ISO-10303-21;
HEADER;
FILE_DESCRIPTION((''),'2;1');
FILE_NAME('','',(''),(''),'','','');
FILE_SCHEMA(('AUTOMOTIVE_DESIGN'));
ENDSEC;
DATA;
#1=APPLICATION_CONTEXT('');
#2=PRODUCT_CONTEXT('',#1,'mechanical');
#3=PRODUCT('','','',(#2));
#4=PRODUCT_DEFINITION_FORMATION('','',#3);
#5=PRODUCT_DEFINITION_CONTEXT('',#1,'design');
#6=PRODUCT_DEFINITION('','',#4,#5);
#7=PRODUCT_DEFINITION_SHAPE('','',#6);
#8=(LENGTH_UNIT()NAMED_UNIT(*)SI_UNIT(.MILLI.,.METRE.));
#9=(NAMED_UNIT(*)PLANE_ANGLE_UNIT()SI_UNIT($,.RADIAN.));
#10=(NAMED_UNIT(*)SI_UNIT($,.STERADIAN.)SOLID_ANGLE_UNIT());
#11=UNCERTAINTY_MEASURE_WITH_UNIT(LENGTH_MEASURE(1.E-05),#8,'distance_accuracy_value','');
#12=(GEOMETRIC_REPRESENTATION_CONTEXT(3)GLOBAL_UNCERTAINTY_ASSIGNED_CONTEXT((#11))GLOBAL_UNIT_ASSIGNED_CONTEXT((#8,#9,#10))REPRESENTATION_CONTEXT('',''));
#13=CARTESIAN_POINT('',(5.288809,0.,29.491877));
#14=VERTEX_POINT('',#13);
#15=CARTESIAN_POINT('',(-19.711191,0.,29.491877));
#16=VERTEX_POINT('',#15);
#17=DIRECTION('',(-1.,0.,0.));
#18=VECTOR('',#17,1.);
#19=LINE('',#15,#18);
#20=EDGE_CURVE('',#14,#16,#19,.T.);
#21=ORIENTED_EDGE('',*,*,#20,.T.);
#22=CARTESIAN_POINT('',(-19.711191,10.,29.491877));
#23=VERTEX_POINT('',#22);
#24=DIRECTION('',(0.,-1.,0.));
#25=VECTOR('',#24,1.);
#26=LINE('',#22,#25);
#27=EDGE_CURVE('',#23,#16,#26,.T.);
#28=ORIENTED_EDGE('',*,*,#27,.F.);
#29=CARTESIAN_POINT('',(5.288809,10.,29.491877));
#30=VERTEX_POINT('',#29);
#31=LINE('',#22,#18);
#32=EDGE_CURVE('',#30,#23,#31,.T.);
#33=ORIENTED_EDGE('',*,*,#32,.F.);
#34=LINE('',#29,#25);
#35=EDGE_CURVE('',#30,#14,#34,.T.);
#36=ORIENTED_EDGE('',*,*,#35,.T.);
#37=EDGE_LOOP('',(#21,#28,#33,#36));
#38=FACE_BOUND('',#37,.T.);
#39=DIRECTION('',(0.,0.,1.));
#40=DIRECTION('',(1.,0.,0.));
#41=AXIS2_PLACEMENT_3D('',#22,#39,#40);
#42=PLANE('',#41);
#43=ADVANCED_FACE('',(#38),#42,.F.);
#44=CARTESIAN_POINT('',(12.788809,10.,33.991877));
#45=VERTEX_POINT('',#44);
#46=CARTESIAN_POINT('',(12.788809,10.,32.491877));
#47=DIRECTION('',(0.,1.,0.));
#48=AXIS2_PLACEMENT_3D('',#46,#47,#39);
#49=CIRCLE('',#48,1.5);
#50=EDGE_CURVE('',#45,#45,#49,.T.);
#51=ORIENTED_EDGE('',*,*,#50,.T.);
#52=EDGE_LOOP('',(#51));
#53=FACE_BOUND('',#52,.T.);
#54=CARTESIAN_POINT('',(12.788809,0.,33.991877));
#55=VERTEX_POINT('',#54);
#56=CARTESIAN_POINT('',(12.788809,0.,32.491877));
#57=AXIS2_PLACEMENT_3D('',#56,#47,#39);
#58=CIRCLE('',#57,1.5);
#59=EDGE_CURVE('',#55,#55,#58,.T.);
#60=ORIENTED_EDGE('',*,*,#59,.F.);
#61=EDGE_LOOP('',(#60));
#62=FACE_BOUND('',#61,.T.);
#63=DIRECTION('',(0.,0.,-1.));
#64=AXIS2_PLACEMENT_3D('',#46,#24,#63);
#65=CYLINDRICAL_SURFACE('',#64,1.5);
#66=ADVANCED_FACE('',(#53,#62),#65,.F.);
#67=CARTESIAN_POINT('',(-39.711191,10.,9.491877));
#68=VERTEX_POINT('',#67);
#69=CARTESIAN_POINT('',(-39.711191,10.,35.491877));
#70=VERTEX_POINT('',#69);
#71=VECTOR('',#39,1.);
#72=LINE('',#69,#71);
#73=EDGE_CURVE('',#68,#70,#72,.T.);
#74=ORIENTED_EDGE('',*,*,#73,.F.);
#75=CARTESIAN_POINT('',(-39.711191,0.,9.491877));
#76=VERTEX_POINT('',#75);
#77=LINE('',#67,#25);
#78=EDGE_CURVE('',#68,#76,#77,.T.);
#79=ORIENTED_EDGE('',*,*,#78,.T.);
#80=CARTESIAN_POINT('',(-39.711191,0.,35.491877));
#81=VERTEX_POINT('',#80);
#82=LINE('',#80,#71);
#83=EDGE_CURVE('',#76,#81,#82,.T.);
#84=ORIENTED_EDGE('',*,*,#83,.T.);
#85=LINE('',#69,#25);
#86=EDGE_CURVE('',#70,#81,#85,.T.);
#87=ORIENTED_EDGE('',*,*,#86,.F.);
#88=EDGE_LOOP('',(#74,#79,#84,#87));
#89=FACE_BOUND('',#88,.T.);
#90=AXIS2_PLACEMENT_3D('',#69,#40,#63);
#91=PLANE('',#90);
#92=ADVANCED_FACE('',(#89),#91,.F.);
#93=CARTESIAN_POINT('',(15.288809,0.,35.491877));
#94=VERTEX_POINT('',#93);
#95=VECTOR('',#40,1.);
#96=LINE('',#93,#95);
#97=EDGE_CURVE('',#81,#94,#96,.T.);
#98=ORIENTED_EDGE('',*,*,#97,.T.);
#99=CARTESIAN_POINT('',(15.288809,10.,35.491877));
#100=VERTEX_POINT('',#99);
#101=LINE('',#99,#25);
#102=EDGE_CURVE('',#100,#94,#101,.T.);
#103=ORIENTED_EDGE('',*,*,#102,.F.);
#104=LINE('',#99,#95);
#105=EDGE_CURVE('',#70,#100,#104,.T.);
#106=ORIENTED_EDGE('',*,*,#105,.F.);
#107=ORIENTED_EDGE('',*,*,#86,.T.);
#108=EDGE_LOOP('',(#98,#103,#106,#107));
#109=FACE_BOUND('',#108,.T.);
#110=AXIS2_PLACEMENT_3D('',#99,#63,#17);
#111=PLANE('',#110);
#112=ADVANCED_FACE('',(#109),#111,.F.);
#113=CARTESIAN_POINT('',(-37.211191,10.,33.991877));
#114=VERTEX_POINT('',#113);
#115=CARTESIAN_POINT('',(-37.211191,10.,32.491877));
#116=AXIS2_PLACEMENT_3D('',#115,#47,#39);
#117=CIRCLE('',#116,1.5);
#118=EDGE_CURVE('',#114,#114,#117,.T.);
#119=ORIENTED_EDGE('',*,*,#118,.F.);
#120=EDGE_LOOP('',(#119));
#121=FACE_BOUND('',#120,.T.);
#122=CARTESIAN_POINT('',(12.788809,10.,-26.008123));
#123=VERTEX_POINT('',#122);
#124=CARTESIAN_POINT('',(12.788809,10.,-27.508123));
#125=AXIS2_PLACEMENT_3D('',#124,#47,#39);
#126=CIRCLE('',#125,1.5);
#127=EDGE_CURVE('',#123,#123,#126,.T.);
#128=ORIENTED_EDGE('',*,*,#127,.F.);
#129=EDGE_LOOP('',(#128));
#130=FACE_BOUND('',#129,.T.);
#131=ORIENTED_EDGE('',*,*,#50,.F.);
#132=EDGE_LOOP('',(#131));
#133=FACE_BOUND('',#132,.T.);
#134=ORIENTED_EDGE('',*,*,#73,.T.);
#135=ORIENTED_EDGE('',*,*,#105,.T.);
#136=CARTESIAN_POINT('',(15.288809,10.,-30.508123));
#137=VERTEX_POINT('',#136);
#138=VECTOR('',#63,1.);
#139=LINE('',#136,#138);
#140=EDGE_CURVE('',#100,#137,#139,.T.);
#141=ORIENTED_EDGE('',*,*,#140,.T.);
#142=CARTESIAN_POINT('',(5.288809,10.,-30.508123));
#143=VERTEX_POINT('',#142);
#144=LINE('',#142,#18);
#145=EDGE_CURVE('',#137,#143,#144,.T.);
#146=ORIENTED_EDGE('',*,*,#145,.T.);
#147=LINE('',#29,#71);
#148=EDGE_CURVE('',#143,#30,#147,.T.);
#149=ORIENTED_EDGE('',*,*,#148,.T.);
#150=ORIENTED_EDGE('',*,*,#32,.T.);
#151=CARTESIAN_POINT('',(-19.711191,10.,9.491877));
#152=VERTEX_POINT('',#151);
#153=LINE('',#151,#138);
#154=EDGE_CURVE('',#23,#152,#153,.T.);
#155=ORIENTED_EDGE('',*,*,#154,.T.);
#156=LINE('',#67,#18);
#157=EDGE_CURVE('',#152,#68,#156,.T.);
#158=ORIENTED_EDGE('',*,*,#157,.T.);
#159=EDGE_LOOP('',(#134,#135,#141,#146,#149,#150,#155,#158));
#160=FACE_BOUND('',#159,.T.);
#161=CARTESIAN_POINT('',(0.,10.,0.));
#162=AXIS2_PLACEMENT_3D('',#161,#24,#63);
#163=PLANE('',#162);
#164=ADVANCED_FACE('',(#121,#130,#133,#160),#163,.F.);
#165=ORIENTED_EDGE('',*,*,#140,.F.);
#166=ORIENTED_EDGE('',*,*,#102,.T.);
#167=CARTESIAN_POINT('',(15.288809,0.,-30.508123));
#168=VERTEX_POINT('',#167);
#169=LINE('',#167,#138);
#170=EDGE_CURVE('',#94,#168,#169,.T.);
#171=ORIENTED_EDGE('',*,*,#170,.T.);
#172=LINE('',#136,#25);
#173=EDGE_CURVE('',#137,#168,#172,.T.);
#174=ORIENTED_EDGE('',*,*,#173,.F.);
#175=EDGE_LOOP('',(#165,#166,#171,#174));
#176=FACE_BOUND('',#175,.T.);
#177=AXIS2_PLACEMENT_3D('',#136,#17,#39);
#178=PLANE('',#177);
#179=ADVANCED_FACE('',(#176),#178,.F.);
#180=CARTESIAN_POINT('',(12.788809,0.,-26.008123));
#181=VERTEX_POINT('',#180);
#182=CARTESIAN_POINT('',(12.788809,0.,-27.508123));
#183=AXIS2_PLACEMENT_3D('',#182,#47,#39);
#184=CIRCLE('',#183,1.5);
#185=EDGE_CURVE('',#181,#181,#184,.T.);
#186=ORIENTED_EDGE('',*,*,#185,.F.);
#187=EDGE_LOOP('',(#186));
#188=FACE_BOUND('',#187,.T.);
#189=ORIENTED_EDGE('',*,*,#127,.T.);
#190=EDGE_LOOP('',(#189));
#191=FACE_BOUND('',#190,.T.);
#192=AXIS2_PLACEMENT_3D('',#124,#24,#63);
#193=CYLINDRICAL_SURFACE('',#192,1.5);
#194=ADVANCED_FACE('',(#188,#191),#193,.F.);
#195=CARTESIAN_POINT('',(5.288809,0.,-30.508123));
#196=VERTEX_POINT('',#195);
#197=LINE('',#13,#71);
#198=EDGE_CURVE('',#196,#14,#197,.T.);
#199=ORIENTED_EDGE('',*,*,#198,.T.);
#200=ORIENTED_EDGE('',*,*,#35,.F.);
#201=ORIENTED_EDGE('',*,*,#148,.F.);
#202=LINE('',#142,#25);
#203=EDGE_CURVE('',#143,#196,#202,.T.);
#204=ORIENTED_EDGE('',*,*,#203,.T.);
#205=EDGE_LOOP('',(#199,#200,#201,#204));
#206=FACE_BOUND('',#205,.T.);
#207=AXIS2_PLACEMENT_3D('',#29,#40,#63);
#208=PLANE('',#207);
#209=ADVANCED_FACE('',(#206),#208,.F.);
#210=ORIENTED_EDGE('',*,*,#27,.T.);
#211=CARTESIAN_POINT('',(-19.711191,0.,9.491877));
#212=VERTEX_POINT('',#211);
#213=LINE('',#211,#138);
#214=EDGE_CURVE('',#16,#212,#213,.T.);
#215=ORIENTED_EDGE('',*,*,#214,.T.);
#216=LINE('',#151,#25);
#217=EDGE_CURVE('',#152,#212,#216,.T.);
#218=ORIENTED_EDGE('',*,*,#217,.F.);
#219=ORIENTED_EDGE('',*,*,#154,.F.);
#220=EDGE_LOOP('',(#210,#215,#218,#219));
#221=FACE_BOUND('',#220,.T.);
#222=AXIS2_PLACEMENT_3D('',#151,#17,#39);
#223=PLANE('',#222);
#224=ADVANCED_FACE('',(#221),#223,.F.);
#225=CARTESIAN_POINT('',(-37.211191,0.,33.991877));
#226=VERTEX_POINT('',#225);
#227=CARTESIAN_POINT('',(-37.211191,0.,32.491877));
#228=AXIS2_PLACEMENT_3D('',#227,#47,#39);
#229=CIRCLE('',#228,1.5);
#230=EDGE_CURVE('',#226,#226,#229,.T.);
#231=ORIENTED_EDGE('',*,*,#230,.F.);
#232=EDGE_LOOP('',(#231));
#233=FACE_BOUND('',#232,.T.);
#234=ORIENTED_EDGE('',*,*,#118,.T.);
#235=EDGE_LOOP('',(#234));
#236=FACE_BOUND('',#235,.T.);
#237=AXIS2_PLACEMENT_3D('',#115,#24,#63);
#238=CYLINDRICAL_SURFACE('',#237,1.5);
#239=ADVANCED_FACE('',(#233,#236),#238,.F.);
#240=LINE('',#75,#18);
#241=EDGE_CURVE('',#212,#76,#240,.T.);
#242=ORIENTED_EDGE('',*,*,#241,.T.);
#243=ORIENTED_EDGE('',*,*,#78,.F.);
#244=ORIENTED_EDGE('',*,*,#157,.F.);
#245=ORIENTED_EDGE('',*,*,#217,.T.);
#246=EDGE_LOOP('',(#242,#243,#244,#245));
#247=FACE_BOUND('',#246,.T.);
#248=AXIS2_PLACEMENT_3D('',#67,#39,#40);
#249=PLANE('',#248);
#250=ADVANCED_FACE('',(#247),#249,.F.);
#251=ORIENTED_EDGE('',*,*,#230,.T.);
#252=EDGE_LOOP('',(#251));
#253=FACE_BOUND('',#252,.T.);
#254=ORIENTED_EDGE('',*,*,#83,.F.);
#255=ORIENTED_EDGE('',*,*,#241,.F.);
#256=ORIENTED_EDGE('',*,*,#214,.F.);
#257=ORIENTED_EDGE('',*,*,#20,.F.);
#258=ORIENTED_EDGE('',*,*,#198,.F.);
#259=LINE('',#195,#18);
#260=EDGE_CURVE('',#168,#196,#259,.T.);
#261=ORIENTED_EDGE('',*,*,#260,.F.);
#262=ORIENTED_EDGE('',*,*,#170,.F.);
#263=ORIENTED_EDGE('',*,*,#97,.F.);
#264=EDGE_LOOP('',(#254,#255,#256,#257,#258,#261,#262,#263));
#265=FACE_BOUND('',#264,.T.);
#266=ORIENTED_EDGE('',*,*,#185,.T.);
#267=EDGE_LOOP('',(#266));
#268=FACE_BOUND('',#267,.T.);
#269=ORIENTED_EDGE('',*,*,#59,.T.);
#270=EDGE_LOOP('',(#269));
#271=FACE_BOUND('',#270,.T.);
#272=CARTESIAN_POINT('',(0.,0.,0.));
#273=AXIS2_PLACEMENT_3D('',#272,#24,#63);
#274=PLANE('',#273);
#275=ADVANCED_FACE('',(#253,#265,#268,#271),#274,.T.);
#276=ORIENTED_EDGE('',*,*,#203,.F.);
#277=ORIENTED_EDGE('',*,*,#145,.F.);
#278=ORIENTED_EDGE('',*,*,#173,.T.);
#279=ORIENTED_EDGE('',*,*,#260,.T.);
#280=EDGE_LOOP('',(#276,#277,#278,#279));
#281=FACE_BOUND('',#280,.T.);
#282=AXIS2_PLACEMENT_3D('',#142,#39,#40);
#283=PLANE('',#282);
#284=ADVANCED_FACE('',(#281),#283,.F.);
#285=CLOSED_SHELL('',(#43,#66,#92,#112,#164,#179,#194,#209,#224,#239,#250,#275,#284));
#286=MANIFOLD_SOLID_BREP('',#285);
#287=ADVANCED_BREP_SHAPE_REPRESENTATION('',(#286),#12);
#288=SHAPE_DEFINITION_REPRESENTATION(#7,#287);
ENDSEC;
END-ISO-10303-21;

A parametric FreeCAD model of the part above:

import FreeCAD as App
import Part
import Sketcher

doc = App.newDocument("Part")
body = doc.addObject("PartDesign::Body", "Body")

# Sketch on XZ plane
sketch1 = doc.addObject("Sketcher::SketchObject", "Sketch")
body.addObject(sketch1)
sketch1.AttachmentSupport = (doc.XZ_Plane, [""])
sketch1.MapMode = "FlatFace"
sketch1.addGeometry([
    Part.LineSegment(App.Vector(15.288809, -30.508123, 0), App.Vector(5.288809, -30.508123, 0)),  # 0
    Part.LineSegment(App.Vector(5.288809, -30.508123, 0), App.Vector(5.288809, 29.491877, 0)),  # 1
    Part.LineSegment(App.Vector(5.288809, 29.491877, 0), App.Vector(-19.711191, 29.491877, 0)),  # 2
    Part.LineSegment(App.Vector(-19.711191, 29.491877, 0), App.Vector(-19.711191, 9.491877, 0)),  # 3
    Part.LineSegment(App.Vector(-19.711191, 9.491877, 0), App.Vector(-39.711191, 9.491877, 0)),  # 4
    Part.LineSegment(App.Vector(-39.711191, 9.491877, 0), App.Vector(-39.711191, 35.491877, 0)),  # 5
    Part.LineSegment(App.Vector(-39.711191, 35.491877, 0), App.Vector(15.288809, 35.491877, 0)),  # 6
    Part.LineSegment(App.Vector(15.288809, 35.491877, 0), App.Vector(15.288809, -30.508123, 0)),  # 7
    Part.Circle(App.Vector(12.788809, 32.491877, 0), App.Vector(0, 0, 1), 1.5),  # 8
    Part.Circle(App.Vector(-37.211191, 32.491877, 0), App.Vector(0, 0, 1), 1.5),  # 9
    Part.Circle(App.Vector(12.788809, -27.508123, 0), App.Vector(0, 0, 1), 1.5),  # 10
], False)
sketch1.addConstraint([
    Sketcher.Constraint("Coincident", 0, 2, 1, 1),
    Sketcher.Constraint("Coincident", 1, 2, 2, 1),
    Sketcher.Constraint("Coincident", 2, 2, 3, 1),
    Sketcher.Constraint("Coincident", 3, 2, 4, 1),
    Sketcher.Constraint("Coincident", 4, 2, 5, 1),
    Sketcher.Constraint("Coincident", 5, 2, 6, 1),
    Sketcher.Constraint("Coincident", 6, 2, 7, 1),
    Sketcher.Constraint("Coincident", 7, 2, 0, 1),
    Sketcher.Constraint("Horizontal", 0),
    Sketcher.Constraint("Vertical", 1),
    Sketcher.Constraint("Horizontal", 2),
    Sketcher.Constraint("Vertical", 3),
    Sketcher.Constraint("Horizontal", 4),
    Sketcher.Constraint("Vertical", 5),
    Sketcher.Constraint("Horizontal", 6),
    Sketcher.Constraint("Vertical", 7),
    Sketcher.Constraint("Equal", 8, 9),
    Sketcher.Constraint("Equal", 9, 10),
    Sketcher.Constraint("Horizontal", 8, 3, 9, 3),
    Sketcher.Constraint("Vertical", 8, 3, 10, 3),
    Sketcher.Constraint("Equal", 4, 3),
    Sketcher.Constraint("Diameter", 8, 3.0),
    Sketcher.Constraint("DistanceX", 0, 2, 0, 1, 10.0),
    Sketcher.Constraint("DistanceX", 2, 2, 2, 1, 25.0),
    Sketcher.Constraint("DistanceX", 4, 2, 4, 1, 20.0),
    Sketcher.Constraint("DistanceY", 1, 1, 1, 2, 60.0),
    Sketcher.Constraint("DistanceY", 5, 1, 5, 2, 26.0),
    Sketcher.Constraint("DistanceX", 9, 3, 8, 3, 50.0),
    Sketcher.Constraint("DistanceY", 10, 3, 8, 3, 60.0),
    Sketcher.Constraint("DistanceY", 0, 2, 10, 3, 3.0),
    Sketcher.Constraint("DistanceX", 0, 2, 10, 3, 7.5),
    Sketcher.Constraint("DistanceX", -1, 1, 8, 3, 12.788809),
    Sketcher.Constraint("DistanceY", -1, 1, 8, 3, 32.491877),
])
pad1 = doc.addObject("PartDesign::Pad", "Pad")
body.addObject(pad1)
pad1.Profile = sketch1
pad1.Length = 10
pad1.Reversed = True

doc.recompute()
